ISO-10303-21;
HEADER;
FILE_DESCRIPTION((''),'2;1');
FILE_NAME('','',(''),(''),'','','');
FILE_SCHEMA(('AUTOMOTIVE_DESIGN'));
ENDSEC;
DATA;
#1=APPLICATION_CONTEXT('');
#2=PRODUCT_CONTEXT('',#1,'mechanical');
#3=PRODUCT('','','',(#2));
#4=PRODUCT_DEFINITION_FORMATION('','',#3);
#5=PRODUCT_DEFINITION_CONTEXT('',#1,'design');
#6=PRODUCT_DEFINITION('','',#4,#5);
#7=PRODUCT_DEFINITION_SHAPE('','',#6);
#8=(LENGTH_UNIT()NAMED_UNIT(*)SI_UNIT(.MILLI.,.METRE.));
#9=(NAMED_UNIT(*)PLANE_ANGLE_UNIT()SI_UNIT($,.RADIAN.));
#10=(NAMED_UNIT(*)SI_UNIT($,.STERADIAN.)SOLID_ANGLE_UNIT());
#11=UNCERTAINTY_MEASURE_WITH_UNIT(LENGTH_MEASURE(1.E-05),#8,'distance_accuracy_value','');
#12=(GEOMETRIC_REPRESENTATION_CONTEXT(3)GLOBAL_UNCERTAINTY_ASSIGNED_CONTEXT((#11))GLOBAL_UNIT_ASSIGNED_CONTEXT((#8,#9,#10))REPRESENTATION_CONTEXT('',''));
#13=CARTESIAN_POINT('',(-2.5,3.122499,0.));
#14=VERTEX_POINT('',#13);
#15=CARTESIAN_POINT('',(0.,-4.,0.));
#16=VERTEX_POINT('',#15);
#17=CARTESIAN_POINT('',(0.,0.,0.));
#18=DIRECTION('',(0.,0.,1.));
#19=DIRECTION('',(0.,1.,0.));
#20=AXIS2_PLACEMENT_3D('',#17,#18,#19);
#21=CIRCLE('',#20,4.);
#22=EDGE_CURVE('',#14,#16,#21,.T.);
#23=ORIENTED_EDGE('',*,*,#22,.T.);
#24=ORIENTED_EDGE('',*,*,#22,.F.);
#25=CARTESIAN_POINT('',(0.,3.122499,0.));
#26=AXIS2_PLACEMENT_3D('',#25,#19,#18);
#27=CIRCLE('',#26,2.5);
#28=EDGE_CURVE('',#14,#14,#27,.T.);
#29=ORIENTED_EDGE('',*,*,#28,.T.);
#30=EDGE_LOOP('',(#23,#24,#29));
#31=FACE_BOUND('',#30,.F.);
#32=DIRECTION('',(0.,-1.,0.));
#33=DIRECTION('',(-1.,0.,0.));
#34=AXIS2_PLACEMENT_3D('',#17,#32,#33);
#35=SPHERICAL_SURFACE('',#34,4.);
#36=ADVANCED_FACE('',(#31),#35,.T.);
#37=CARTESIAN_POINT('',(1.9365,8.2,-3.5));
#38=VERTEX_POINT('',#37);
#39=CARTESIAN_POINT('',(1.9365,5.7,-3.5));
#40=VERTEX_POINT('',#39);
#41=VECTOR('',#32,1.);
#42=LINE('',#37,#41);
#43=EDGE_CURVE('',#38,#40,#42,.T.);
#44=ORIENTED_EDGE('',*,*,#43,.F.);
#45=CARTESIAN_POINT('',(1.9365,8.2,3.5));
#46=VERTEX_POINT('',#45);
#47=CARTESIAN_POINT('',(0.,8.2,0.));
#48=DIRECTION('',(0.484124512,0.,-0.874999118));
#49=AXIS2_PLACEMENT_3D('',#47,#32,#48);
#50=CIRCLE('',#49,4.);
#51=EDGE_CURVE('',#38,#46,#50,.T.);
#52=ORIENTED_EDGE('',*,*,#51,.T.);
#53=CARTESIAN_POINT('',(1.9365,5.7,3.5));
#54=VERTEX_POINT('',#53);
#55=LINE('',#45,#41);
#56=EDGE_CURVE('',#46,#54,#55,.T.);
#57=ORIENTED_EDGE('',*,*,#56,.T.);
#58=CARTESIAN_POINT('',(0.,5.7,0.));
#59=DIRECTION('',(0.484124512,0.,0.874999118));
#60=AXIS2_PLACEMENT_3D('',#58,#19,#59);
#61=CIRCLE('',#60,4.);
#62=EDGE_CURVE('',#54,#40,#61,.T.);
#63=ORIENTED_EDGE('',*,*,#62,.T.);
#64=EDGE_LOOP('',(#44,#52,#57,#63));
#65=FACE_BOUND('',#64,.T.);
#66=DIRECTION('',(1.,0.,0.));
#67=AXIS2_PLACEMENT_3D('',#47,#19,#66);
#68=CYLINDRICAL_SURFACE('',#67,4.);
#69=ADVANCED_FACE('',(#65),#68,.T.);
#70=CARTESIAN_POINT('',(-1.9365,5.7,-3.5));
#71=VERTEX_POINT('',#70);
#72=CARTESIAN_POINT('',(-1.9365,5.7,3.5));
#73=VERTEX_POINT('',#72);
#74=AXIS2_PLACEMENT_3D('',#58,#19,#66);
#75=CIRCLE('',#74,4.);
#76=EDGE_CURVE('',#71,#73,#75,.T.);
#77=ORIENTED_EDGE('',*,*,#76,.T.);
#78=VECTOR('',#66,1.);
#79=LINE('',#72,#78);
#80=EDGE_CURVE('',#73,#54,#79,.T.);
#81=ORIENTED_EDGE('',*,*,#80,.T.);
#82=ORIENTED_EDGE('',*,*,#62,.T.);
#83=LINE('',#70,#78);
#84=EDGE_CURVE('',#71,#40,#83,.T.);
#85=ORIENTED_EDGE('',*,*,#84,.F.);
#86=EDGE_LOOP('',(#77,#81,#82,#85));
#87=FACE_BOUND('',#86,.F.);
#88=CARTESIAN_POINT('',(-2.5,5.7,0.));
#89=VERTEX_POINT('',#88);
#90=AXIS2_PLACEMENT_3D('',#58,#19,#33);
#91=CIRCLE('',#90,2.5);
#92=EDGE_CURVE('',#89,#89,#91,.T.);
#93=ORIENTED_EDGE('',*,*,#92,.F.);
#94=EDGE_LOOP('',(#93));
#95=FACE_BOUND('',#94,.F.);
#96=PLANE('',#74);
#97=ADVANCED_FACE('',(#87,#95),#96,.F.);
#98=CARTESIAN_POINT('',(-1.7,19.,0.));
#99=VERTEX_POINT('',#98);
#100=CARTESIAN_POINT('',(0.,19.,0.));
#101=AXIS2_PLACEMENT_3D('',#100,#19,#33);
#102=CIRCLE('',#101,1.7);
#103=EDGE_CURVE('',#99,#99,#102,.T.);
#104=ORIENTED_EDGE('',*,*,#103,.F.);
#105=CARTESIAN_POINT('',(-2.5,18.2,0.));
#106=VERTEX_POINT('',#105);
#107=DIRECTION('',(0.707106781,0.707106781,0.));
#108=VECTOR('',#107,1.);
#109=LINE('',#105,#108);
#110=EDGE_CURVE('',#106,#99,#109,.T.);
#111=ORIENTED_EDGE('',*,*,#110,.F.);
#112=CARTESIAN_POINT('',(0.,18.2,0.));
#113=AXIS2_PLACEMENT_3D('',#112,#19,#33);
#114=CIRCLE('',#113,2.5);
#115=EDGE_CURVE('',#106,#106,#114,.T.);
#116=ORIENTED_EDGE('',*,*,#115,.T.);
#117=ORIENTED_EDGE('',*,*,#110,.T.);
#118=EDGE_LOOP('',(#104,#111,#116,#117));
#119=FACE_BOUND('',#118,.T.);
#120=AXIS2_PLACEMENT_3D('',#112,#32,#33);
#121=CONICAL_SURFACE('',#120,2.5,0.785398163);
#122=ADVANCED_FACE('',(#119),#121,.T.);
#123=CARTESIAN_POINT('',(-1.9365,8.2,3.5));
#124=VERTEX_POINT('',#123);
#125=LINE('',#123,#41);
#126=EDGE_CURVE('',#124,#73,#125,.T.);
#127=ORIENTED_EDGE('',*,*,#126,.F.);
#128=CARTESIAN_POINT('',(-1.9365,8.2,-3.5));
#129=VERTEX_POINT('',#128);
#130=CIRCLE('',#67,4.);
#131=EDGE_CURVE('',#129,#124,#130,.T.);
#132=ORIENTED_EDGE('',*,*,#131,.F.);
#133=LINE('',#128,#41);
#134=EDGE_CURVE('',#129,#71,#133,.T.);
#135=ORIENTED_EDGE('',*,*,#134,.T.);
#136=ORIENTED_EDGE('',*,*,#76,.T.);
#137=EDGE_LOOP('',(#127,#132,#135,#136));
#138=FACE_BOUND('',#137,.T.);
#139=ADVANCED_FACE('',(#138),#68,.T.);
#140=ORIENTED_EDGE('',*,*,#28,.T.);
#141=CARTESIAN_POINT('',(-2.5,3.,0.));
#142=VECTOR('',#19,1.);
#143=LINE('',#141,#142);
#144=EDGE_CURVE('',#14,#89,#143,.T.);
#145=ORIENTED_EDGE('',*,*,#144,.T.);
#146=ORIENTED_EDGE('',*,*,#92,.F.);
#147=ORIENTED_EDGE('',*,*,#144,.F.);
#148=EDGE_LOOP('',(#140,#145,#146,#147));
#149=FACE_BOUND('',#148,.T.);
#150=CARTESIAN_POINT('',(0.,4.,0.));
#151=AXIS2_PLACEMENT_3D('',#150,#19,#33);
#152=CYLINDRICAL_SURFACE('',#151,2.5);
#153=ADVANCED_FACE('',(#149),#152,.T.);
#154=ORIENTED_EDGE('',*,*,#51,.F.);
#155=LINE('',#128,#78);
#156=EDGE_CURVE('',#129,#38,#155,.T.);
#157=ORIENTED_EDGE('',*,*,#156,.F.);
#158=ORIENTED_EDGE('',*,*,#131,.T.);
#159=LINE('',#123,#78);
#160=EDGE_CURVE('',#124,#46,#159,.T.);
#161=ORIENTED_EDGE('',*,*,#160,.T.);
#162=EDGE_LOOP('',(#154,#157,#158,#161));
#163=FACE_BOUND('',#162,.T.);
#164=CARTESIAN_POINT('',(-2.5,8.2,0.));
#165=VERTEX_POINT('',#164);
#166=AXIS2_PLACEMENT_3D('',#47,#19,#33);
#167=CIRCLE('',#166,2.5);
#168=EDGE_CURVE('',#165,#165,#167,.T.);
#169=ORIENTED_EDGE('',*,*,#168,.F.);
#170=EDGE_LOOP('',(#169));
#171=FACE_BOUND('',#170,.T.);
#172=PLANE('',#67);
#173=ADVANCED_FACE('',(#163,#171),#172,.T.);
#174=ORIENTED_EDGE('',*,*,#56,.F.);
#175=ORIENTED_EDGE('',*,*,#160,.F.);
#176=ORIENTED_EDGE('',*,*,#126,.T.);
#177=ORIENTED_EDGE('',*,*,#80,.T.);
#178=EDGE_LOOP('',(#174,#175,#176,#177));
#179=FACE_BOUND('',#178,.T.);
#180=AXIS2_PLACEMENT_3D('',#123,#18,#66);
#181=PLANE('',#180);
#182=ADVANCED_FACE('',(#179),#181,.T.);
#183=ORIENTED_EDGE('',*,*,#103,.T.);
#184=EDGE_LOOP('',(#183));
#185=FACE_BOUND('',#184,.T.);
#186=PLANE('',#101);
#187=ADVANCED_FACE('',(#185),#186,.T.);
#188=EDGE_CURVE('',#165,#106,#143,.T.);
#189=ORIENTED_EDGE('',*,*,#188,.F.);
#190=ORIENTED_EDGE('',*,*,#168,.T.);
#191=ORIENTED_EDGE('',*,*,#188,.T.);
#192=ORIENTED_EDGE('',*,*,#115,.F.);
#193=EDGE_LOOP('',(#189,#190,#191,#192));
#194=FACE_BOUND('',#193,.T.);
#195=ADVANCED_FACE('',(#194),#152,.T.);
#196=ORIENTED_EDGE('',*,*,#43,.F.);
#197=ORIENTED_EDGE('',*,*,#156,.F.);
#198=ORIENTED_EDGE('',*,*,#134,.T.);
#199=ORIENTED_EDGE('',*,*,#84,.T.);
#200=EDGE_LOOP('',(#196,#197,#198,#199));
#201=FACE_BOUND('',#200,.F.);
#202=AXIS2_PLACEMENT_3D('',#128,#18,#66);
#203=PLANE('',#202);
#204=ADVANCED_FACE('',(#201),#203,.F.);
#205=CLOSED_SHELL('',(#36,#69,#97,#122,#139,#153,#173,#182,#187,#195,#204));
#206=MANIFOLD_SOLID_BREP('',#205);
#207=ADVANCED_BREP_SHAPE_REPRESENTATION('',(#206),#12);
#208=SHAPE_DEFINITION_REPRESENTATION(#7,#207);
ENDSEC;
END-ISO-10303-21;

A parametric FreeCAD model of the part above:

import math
import FreeCAD as App
import Part
import Sketcher

V = App.Vector
Q = App.Units.Quantity


def edges_at(feature, points):
    """Names of the edges that pass closest to the given points."""
    edges = feature.Shape.Edges
    near = lambda p: min(range(len(edges)), key=lambda i: edges[i].distToShape(Part.Vertex(*p))[0])
    return sorted({f"Edge{near(p) + 1}" for p in points})

doc = App.newDocument("Part")
params = doc.addObject("Spreadsheet::Sheet", "Params")
for row, (alias, value) in enumerate([
    ("sketch1_radius", "4 mm"),
    ("revolution_angle", "360 deg"),
    ("sketch2_diameter", "5 mm"),
    ("pad1_length", "1 mm"),
    ("pad1_length2", "15 mm"),
    ("chamfer_size", "0.8 mm"),
    ("sketch3_radius", "4 mm"),
    ("pad2_length", "2.5 mm"),
], start=1):
    params.set(f"A{row}", alias)
    params.set(f"B{row}", "=" + value)
    params.setAlias(f"B{row}", alias)

body = doc.addObject("PartDesign::Body", "Body")

# Sketch on XY plane
sketch1 = body.newObject("Sketcher::SketchObject", "Sketch")
sketch1.AttachmentSupport = (doc.getObject("XY_Plane"), [""])
sketch1.MapMode = "FlatFace"
sketch1.addGeometry([
    Part.LineSegment(V(0, -4, 0), V(0, 4, 0)),
    Part.ArcOfCircle(Part.Circle(V(0, 0, 0), V(0, 0, 1), 4), math.radians(90), math.radians(270)),
], False)
sketch1.addConstraint([
    Sketcher.Constraint("Coincident", 0, 1, 1, 2),
    Sketcher.Constraint("Coincident", 1, 1, 0, 2),
    Sketcher.Constraint("Vertical", 0),
    Sketcher.Constraint("Coincident", 1, 3, -1, 1),
    Sketcher.Constraint("PointOnObject", 0, 1, -2),
    Sketcher.Constraint("Radius", 1, Q("4 mm")),
])
sketch1.setExpression("Constraints[5]", "Params.sketch1_radius")
revolution = body.newObject("PartDesign::Revolution", "Revolution")
revolution.Profile = sketch1
revolution.ReferenceAxis = (sketch1, ["V_Axis"])
revolution.setExpression("Angle", "Params.revolution_angle")

# Sketch on XZ plane
sketch2 = body.newObject("Sketcher::SketchObject", "Sketch001")
sketch2.AttachmentSupport = (doc.getObject("XZ_Plane"), [""])
sketch2.MapMode = "FlatFace"
sketch2.AttachmentOffset = App.Placement(V(0, 0, -4), App.Rotation())
sketch2.addGeometry(Part.Circle(V(0, 0, 0), V(0, 0, 1), 2.5), False)
sketch2.addConstraint([
    Sketcher.Constraint("Coincident", 0, 3, -1, 1),
    Sketcher.Constraint("Diameter", 0, Q("5 mm")),
])
sketch2.setExpression("Constraints[1]", "Params.sketch2_diameter")
pad1 = body.newObject("PartDesign::Pad", "Pad")
pad1.Profile = sketch2
pad1.Type = "TwoLengths"
pad1.setExpression("Length", "Params.pad1_length")
pad1.setExpression("Length2", "Params.pad1_length2")
doc.recompute()

chamfer = body.newObject("PartDesign::Chamfer", "Chamfer")
chamfer.Base = (pad1, edges_at(pad1, [(2.5, 19, 0)]))
chamfer.setExpression("Size", "Params.chamfer_size")

# Sketch on XZ plane
sketch3 = body.newObject("Sketcher::SketchObject", "Sketch002")
sketch3.AttachmentSupport = (doc.getObject("XZ_Plane"), [""])
sketch3.MapMode = "FlatFace"
sketch3.AttachmentOffset = App.Placement(V(0, 0, -8.2), App.Rotation())
sketch3.addGeometry([
    Part.ArcOfCircle(Part.Circle(V(0, 0, 0), V(0, 0, 1), 4), math.radians(-61), math.radians(61)),
    Part.LineSegment(V(1.9, -3.5, 0), V(-1.9, -3.5, 0)),
    Part.ArcOfCircle(Part.Circle(V(0, 0, 0), V(0, 0, 1), 4), math.radians(119), math.radians(241)),
    Part.LineSegment(V(-1.9, 3.5, 0), V(1.9, 3.5, 0)),
], False)
sketch3.addConstraint([
    Sketcher.Constraint("Coincident", 0, 1, 1, 1),
    Sketcher.Constraint("Coincident", 1, 2, 2, 2),
    Sketcher.Constraint("Coincident", 2, 1, 3, 1),
    Sketcher.Constraint("Coincident", 3, 2, 0, 2),
    Sketcher.Constraint("Horizontal", 1),
    Sketcher.Constraint("Horizontal", 3),
    Sketcher.Constraint("Coincident", 0, 3, -1, 1),
    Sketcher.Constraint("Coincident", 2, 3, -1, 1),
    Sketcher.Constraint("Equal", 0, 2),
    Sketcher.Constraint("Vertical", 1, 2, 2, 1),
    Sketcher.Constraint("Radius", 0, Q("4 mm")),
    Sketcher.Constraint("DistanceY", 1, 2, 2, 1, Q("7 mm")),
])
sketch3.setExpression("Constraints[10]", "Params.sketch3_radius")
pad2 = body.newObject("PartDesign::Pad", "Pad001")
pad2.Profile = sketch3
pad2.setExpression("Length", "Params.pad2_length")

doc.recompute()
